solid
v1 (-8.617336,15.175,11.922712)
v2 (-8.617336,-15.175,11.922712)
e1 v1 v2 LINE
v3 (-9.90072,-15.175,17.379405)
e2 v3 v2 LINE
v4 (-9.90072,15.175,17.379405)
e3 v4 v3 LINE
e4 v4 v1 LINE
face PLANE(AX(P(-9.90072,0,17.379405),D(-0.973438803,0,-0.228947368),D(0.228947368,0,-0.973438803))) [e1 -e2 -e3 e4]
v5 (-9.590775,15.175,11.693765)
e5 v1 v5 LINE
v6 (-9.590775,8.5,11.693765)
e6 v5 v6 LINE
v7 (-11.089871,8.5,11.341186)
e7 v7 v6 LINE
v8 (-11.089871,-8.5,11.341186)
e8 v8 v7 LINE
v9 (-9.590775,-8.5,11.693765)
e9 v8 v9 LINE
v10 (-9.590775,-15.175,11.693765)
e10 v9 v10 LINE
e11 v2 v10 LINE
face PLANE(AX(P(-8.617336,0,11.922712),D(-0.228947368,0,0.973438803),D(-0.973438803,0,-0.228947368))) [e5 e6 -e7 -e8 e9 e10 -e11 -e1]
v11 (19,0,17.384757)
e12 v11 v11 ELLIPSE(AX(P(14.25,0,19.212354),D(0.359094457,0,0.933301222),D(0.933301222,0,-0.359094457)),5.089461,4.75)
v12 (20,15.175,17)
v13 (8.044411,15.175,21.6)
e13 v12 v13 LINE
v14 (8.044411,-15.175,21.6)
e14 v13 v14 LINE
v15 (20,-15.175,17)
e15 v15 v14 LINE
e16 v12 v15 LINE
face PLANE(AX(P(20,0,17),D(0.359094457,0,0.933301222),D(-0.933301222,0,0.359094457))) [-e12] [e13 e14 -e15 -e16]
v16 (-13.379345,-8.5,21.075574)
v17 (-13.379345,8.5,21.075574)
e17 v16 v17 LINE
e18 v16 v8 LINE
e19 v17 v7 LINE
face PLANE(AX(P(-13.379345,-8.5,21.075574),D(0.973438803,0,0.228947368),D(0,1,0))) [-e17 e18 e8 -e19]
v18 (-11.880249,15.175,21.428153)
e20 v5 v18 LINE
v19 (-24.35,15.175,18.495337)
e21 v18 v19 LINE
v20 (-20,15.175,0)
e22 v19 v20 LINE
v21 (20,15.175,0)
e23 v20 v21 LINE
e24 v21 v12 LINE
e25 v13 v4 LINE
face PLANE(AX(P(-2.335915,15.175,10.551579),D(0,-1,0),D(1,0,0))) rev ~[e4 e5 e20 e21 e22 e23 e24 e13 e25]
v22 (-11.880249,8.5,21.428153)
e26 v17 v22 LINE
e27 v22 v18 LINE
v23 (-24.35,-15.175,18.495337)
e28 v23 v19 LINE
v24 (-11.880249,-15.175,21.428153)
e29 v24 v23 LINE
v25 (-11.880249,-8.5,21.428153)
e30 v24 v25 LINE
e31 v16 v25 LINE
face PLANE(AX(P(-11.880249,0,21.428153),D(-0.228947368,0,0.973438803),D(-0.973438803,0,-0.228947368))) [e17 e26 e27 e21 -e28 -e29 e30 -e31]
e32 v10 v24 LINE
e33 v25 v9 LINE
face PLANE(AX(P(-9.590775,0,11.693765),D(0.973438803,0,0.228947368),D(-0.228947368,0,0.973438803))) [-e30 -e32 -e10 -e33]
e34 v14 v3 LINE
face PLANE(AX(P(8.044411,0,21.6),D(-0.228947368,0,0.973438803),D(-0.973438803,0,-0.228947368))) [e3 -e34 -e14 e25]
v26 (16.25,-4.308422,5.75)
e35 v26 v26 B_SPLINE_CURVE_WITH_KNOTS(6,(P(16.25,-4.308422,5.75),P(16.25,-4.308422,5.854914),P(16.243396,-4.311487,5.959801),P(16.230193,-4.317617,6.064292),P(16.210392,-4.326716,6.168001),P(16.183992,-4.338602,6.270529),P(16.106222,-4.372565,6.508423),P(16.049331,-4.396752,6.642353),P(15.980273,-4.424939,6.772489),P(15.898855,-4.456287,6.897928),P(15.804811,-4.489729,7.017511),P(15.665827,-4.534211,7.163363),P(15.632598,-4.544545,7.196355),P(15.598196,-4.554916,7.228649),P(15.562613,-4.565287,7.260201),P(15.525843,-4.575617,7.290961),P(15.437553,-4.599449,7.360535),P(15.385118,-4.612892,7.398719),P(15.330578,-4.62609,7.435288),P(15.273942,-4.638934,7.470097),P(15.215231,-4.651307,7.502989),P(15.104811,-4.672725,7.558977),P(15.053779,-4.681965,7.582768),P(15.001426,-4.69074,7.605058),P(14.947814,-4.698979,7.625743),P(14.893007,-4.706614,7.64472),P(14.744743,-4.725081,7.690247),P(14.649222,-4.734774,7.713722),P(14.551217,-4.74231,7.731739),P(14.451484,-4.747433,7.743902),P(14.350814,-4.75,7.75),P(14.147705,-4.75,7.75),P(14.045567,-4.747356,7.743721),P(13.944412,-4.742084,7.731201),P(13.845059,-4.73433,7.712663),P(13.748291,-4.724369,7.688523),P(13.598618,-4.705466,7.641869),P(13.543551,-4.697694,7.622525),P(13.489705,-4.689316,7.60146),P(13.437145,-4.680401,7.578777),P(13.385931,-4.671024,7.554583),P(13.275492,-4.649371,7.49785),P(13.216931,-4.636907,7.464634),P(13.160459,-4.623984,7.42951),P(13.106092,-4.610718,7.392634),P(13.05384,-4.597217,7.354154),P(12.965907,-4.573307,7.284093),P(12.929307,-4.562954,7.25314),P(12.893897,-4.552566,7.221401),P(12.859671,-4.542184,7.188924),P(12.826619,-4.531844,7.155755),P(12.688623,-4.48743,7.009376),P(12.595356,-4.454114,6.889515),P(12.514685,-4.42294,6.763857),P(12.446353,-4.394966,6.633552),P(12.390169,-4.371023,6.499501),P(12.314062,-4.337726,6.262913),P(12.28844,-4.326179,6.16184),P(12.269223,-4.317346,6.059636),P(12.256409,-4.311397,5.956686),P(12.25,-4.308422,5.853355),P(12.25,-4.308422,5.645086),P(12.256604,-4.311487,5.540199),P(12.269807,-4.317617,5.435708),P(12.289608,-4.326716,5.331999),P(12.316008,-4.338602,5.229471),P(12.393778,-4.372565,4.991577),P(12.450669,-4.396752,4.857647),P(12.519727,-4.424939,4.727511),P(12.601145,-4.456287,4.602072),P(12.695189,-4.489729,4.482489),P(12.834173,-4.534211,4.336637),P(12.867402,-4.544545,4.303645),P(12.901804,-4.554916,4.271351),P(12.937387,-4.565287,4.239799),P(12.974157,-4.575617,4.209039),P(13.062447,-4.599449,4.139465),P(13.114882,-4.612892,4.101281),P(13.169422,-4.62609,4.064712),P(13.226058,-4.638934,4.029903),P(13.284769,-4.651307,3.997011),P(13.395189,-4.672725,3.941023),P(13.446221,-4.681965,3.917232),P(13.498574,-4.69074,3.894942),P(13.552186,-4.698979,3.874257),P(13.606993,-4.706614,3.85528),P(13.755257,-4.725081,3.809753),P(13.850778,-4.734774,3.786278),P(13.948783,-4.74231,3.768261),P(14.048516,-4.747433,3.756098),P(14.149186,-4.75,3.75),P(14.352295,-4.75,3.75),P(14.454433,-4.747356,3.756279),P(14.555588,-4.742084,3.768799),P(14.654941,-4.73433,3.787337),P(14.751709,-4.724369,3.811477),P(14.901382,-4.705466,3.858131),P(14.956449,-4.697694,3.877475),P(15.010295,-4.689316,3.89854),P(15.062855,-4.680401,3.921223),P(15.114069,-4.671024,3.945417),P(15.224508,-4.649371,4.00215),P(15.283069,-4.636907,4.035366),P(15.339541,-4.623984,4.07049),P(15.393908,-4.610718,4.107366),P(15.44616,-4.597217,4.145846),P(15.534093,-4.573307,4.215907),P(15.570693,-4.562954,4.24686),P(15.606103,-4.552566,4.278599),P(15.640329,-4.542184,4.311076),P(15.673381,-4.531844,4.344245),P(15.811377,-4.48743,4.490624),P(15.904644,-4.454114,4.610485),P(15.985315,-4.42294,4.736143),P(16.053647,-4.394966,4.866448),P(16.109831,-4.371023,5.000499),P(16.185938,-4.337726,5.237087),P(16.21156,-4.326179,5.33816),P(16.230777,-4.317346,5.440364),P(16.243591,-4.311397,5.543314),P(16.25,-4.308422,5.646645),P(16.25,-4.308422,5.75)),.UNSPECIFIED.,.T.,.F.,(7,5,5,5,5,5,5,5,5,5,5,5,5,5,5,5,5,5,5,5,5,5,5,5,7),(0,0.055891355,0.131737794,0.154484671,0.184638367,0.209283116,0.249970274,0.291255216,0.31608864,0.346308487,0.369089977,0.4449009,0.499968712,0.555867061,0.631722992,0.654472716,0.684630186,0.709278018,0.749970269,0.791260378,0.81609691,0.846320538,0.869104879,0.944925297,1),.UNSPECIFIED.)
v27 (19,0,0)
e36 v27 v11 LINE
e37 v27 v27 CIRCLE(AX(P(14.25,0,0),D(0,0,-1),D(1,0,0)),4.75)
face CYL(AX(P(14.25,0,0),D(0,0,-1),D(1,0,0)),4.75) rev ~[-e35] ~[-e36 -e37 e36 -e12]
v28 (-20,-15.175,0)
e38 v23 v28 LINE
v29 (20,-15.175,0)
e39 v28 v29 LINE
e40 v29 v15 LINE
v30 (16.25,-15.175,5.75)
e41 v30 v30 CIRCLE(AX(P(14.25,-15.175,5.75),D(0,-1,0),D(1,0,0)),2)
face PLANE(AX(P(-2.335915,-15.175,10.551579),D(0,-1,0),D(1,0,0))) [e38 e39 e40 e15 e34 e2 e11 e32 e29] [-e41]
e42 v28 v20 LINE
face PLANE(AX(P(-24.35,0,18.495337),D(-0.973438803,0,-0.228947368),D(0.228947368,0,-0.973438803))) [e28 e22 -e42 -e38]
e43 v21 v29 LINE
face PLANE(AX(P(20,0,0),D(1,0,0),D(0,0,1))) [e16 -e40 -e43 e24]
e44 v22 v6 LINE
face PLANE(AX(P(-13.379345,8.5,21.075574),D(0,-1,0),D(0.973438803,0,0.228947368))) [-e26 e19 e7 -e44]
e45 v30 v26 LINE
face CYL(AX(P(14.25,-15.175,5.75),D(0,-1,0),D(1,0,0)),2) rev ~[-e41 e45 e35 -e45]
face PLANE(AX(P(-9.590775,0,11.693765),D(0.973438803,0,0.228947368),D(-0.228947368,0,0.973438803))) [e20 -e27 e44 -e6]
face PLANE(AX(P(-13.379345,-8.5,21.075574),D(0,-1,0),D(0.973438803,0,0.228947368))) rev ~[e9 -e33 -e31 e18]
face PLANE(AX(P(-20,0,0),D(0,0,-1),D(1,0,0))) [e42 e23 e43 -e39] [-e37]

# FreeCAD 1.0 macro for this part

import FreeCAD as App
import Part
import Sketcher
from FreeCAD import Vector
Q = App.Units.Quantity

doc = App.newDocument("Part")
body = doc.addObject("PartDesign::Body", "Body")

# Sketch on XZ plane
sketch1 = body.newObject("Sketcher::SketchObject", "Sketch")
sketch1.AttachmentSupport = (doc.getObject("XZ_Plane"), [""])
sketch1.MapMode = "FlatFace"
sketch1.addGeometry([
    Part.LineSegment(Vector(-20, 0, 0), Vector(20, 0, 0)),  # 0
    Part.LineSegment(Vector(20, 0, 0), Vector(20, 17, 0)),  # 1
    Part.LineSegment(Vector(20, 17, 0), Vector(8.044411, 21.6, 0)),  # 2
    Part.LineSegment(Vector(8.044411, 21.6, 0), Vector(-9.90072, 17.379405, 0)),  # 3
    Part.LineSegment(Vector(-9.90072, 17.379405, 0), Vector(-8.617336, 11.922712, 0)),  # 4
    Part.LineSegment(Vector(-8.617336, 11.922712, 0), Vector(-9.590775, 11.693765, 0)),  # 5
    Part.LineSegment(Vector(-9.590775, 11.693765, 0), Vector(-11.880249, 21.428153, 0)),  # 6
    Part.LineSegment(Vector(-11.880249, 21.428153, 0), Vector(-24.35, 18.495337, 0)),  # 7
    Part.LineSegment(Vector(-24.35, 18.495337, 0), Vector(-20, 0, 0)),  # 8
], False)
sketch1.addConstraint([
    Sketcher.Constraint("Coincident", 0, 2, 1, 1),
    Sketcher.Constraint("Coincident", 1, 2, 2, 1),
    Sketcher.Constraint("Coincident", 2, 2, 3, 1),
    Sketcher.Constraint("Coincident", 3, 2, 4, 1),
    Sketcher.Constraint("Coincident", 4, 2, 5, 1),
    Sketcher.Constraint("Coincident", 5, 2, 6, 1),
    Sketcher.Constraint("Coincident", 6, 2, 7, 1),
    Sketcher.Constraint("Coincident", 7, 2, 8, 1),
    Sketcher.Constraint("Coincident", 8, 2, 0, 1),
    Sketcher.Constraint("Horizontal", 0),
    Sketcher.Constraint("Vertical", 1),
    Sketcher.Constraint("Symmetric", 0, 2, 8, 2, -1, 1),
    Sketcher.Constraint("Perpendicular", 3, 4),
    Sketcher.Constraint("Perpendicular", 4, 5),
    Sketcher.Constraint("Perpendicular", 5, 6),
    Sketcher.Constraint("Perpendicular", 6, 7),
    Sketcher.Constraint("Perpendicular", 7, 8),
    Sketcher.Constraint("Equal", 2, 7),
    Sketcher.Constraint("DistanceX", 0, 1, 0, 2, Q("40 mm")),
    Sketcher.Constraint("DistanceY", 1, 1, 1, 2, Q("17 mm")),
    Sketcher.Constraint("Distance", 5, Q("1 mm")),
    Sketcher.Constraint("Distance", 6, Q("10 mm")),
    Sketcher.Constraint("Distance", 8, Q("19 mm")),
    Sketcher.Constraint("DistanceY", -1, 1, 2, 2, Q("21.6 mm")),
    Sketcher.Constraint("Distance", 2, Q("12.81 mm")),
    Sketcher.Constraint("DistanceX", 7, 2, -1, 1, Q("24.35 mm")),
])
pad1 = body.newObject("PartDesign::Pad", "Pad")
pad1.Profile = sketch1
pad1.Length = 30.35
pad1.Midplane = True

# Sketch on XY plane
sketch2 = body.newObject("Sketcher::SketchObject", "Sketch001")
sketch2.AttachmentSupport = (doc.getObject("XY_Plane"), [""])
sketch2.MapMode = "FlatFace"
sketch2.addGeometry(Part.Circle(Vector(14.25, 0, 0), Vector(0, 0, 1), 4.75), False)
sketch2.addConstraint([
    Sketcher.Constraint("PointOnObject", 0, 3, -1),
    Sketcher.Constraint("Diameter", 0, Q("9.5 mm")),
    Sketcher.Constraint("DistanceX", -1, 1, 0, 3, Q("14.25 mm")),
])
pocket1 = body.newObject("PartDesign::Pocket", "Pocket")
pocket1.Profile = sketch2
pocket1.Type = "ThroughAll"
pocket1.Reversed = True

# Sketch on an angled plane
sketch3 = body.newObject("Sketcher::SketchObject", "Sketch002")
sketch3.Placement = App.Placement(Vector(-5.398338, 0, 22.952662), App.Rotation(Vector(0.973438803, 0, 0.228947368), Vector(0, 1.000000001, 0), Vector(-0.228947368, 0, 0.973438803), "ZXY"))
sketch3.addGeometry([
    Part.LineSegment(Vector(-8.198776, 8.5, 0), Vector(-8.198776, -8.5, 0)),
    Part.LineSegment(Vector(-8.198776, -8.5, 0), Vector(-6.658776, -8.5, 0)),
    Part.LineSegment(Vector(-6.658776, -8.5, 0), Vector(-6.658776, 8.5, 0)),
    Part.LineSegment(Vector(-6.658776, 8.5, 0), Vector(-8.198776, 8.5, 0)),
], False)
sketch3.addConstraint([
    Sketcher.Constraint("Coincident", 0, 2, 1, 1),
    Sketcher.Constraint("Coincident", 1, 2, 2, 1),
    Sketcher.Constraint("Coincident", 2, 2, 3, 1),
    Sketcher.Constraint("Coincident", 3, 2, 0, 1),
    Sketcher.Constraint("Vertical", 0),
    Sketcher.Constraint("Horizontal", 1),
    Sketcher.Constraint("Vertical", 2),
    Sketcher.Constraint("Horizontal", 3),
    Sketcher.Constraint("DistanceY", 0, 2, 0, 1, Q("17 mm")),
    Sketcher.Constraint("DistanceX", 1, 1, 1, 2, Q("1.54 mm")),
    Sketcher.Constraint("DistanceY", 0, 2, -1, 1, Q("8.5 mm")),
    Sketcher.Constraint("DistanceX", 0, 2, -1, 1, Q("8.198776 mm")),
])
pocket2 = body.newObject("PartDesign::Pocket", "Pocket001")
pocket2.Profile = sketch3
pocket2.Length = 10

# Sketch on XZ plane
sketch4 = body.newObject("Sketcher::SketchObject", "Sketch003")
sketch4.AttachmentSupport = (doc.getObject("XZ_Plane"), [""])
sketch4.MapMode = "FlatFace"
sketch4.AttachmentOffset = App.Placement(Vector(0, 0, 15.175), App.Rotation())
sketch4.addGeometry(Part.Circle(Vector(14.25, 5.75, 0), Vector(0, 0, 1), 2), False)
sketch4.addConstraint([
    Sketcher.Constraint("Diameter", 0, Q("4 mm")),
    Sketcher.Constraint("DistanceX", -1, 1, 0, 3, Q("14.25 mm")),
    Sketcher.Constraint("DistanceY", -1, 1, 0, 3, Q("5.75 mm")),
])
pocket3 = body.newObject("PartDesign::Pocket", "Pocket002")
pocket3.Profile = sketch4
pocket3.Length = 10.867578

doc.recompute()
